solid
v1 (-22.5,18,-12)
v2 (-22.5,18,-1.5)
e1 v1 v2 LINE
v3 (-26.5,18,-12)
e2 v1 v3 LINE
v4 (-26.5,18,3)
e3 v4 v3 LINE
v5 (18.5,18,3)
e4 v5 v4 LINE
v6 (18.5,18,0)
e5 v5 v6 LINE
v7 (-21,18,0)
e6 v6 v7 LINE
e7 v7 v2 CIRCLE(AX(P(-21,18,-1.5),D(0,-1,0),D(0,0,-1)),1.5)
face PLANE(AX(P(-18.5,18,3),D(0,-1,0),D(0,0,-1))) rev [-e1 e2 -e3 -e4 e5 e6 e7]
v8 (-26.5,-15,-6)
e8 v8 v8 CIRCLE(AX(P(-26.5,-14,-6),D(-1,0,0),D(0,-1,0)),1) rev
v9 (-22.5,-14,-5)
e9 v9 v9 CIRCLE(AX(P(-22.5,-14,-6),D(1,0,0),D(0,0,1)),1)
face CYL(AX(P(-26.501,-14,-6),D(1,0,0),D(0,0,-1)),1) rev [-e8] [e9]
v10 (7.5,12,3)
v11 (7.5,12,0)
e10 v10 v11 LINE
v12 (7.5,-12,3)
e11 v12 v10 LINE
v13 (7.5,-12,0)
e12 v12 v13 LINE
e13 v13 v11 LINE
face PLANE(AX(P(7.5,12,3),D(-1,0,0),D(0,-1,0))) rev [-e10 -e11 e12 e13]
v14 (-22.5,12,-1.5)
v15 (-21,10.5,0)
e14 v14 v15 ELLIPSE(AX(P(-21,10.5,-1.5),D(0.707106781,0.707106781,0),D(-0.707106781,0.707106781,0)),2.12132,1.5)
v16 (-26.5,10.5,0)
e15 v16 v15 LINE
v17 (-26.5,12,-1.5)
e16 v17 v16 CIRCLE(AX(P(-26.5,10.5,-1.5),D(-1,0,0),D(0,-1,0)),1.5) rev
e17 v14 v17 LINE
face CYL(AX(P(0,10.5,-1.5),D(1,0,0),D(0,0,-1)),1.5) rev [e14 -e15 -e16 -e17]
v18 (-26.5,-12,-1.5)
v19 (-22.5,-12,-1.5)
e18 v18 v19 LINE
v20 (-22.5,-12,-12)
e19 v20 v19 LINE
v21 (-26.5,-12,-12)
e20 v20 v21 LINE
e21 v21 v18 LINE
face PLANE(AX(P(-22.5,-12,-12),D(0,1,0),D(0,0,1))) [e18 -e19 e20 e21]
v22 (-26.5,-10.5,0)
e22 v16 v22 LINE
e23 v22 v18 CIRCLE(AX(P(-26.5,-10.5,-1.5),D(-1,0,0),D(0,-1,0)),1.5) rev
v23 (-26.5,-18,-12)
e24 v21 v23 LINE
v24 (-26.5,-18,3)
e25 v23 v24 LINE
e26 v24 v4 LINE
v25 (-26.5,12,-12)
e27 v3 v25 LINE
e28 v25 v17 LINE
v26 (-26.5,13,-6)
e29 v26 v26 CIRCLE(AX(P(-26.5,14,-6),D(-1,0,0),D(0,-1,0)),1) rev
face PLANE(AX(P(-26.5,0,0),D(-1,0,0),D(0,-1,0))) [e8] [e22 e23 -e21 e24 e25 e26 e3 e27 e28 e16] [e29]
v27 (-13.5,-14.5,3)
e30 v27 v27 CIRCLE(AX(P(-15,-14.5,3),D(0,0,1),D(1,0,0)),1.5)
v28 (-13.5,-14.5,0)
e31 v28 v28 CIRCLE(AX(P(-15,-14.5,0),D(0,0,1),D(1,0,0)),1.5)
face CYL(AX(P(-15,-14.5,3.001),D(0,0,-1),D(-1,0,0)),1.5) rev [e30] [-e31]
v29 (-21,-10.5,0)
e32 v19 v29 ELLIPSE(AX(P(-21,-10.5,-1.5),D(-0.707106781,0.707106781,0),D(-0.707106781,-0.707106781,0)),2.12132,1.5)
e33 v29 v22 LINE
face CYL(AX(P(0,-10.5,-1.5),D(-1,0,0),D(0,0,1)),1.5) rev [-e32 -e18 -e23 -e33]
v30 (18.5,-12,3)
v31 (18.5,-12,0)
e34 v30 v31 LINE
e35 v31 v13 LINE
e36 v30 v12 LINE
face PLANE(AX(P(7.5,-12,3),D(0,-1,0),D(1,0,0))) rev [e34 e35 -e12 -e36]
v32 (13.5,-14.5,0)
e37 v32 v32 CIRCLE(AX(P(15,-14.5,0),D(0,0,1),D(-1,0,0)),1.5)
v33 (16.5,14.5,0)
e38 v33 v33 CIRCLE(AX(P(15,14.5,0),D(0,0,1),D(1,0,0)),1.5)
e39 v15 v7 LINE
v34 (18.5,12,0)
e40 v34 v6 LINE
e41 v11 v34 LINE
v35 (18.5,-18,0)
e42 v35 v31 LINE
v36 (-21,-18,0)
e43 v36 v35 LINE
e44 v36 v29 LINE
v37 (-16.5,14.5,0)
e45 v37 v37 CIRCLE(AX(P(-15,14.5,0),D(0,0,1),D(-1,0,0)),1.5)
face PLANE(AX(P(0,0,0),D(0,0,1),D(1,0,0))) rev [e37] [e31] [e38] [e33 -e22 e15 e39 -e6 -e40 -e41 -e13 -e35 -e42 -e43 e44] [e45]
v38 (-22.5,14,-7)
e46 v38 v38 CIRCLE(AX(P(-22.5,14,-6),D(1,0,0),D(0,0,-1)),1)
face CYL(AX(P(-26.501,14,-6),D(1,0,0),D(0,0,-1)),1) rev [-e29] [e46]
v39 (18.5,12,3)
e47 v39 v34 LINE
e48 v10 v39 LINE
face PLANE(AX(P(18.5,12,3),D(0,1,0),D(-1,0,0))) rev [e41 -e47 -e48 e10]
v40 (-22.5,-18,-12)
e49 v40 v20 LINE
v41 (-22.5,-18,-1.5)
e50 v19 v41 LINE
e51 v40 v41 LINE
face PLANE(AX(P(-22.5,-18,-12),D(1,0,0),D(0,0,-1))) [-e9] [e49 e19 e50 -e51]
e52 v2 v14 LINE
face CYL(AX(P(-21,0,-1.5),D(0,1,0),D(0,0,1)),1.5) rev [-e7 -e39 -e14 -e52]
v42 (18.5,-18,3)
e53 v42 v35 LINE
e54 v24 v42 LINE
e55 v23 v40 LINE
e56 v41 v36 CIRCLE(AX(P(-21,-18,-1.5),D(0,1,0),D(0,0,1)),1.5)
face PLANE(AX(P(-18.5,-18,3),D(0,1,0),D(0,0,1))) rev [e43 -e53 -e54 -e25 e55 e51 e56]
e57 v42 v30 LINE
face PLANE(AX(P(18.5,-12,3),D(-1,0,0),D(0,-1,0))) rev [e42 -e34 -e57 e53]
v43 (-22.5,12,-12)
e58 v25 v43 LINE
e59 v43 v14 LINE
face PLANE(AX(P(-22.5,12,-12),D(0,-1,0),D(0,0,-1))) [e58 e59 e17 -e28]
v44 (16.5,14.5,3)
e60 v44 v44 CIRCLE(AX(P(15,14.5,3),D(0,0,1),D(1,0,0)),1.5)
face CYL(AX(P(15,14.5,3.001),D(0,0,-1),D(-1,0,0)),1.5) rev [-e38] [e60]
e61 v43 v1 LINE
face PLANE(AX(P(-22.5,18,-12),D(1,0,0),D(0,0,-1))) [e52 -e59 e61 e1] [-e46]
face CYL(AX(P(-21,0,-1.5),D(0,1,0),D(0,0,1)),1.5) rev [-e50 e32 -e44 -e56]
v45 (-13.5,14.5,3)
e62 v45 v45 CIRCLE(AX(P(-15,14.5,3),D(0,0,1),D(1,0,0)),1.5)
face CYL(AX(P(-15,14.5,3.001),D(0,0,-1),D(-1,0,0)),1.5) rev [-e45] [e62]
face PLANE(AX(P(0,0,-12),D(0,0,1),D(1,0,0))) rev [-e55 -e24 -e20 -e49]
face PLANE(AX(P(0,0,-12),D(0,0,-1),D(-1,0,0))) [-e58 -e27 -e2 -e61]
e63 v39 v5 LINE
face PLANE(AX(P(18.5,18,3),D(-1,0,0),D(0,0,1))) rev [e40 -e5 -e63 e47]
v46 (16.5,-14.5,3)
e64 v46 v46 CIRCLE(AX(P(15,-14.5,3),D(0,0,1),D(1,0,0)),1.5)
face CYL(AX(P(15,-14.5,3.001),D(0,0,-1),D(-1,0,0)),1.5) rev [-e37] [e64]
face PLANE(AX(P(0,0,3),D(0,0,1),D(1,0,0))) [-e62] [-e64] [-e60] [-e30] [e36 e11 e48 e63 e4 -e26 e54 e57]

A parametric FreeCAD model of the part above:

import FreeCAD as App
import Part
import Sketcher

V = App.Vector
Q = App.Units.Quantity


def edges_at(feature, points):
    """Names of the edges that pass closest to the given points."""
    edges = feature.Shape.Edges
    near = lambda p: min(range(len(edges)), key=lambda i: edges[i].distToShape(Part.Vertex(*p))[0])
    return sorted({f"Edge{near(p) + 1}" for p in points})


def add_polygon(sketch, points):
    """Adds a closed chain of lines whose ends are joined by coincident constraints."""
    first, n = sketch.GeometryCount, len(points)
    for a, b in zip(points, points[1:] + points[:1]):
        sketch.addGeometry(Part.LineSegment(App.Vector(*a, 0), App.Vector(*b, 0)), False)
    for i in range(n):
        sketch.addConstraint(Sketcher.Constraint("Coincident", first + i, 2, first + (i + 1) % n, 1))

doc = App.newDocument("Part")
body = doc.addObject("PartDesign::Body", "Body")

# Sketch on XY plane
sketch1 = body.newObject("Sketcher::SketchObject", "Sketch")
sketch1.AttachmentSupport = (doc.getObject("XY_Plane"), [""])
sketch1.MapMode = "FlatFace"
add_polygon(sketch1, [(18, 18), (-18, 18), (-18, -18), (18, -18), (18, -12), (8, -12), (8, 12), (18, 12)])  # lines 0-7
sketch1.addConstraint([
    Sketcher.Constraint("Horizontal", 0),
    Sketcher.Constraint("Vertical", 1),
    Sketcher.Constraint("Horizontal", 2),
    Sketcher.Constraint("Vertical", 3),
    Sketcher.Constraint("Horizontal", 4),
    Sketcher.Constraint("Vertical", 5),
    Sketcher.Constraint("Horizontal", 6),
    Sketcher.Constraint("Vertical", 7),
    Sketcher.Constraint("Symmetric", 0, 2, 2, 2, -1, 1),
    Sketcher.Constraint("Symmetric", 3, 2, 6, 2, -1),
    Sketcher.Constraint("DistanceX", 0, 2, 0, 1, Q("37 mm")),
    Sketcher.Constraint("DistanceX", 4, 2, 4, 1, Q("11 mm")),
    Sketcher.Constraint("DistanceY", 1, 2, 1, 1, Q("36 mm")),
    Sketcher.Constraint("DistanceY", 3, 1, 3, 2, Q("6 mm")),
])
pad1 = body.newObject("PartDesign::Pad", "Pad")
pad1.Profile = sketch1
pad1.Length = 3

# Sketch on XY plane
sketch2 = body.newObject("Sketcher::SketchObject", "Sketch001")
sketch2.AttachmentSupport = (doc.getObject("XY_Plane"), [""])
sketch2.MapMode = "FlatFace"
sketch2.addGeometry(Part.Circle(V(-15, -14.5, 0), V(0, 0, 1), 1.5), False)
sketch2.addConstraint([
    Sketcher.Constraint("Diameter", 0, Q("3 mm")),
    Sketcher.Constraint("DistanceX", 0, 3, -1, 1, Q("15 mm")),
    Sketcher.Constraint("DistanceY", 0, 3, -1, 1, Q("14.5 mm")),
])
pocket1 = body.newObject("PartDesign::Pocket", "Pocket")
pocket1.Profile = sketch2
pocket1.Type = "UpToFirst"
pocket1.Reversed = True

# Sketch on XY plane
sketch3 = body.newObject("Sketcher::SketchObject", "Sketch002")
sketch3.AttachmentSupport = (doc.getObject("XY_Plane"), [""])
sketch3.MapMode = "FlatFace"
sketch3.addGeometry(Part.Circle(V(15, -14.5, 0), V(0, 0, 1), 1.5), False)
sketch3.addConstraint([
    Sketcher.Constraint("Diameter", 0, Q("3 mm")),
    Sketcher.Constraint("DistanceX", -1, 1, 0, 3, Q("15 mm")),
    Sketcher.Constraint("DistanceY", 0, 3, -1, 1, Q("14.5 mm")),
])
pocket2 = body.newObject("PartDesign::Pocket", "Pocket001")
pocket2.Profile = sketch3
pocket2.Type = "UpToFirst"
pocket2.Reversed = True

# Sketch on XY plane
sketch4 = body.newObject("Sketcher::SketchObject", "Sketch003")
sketch4.AttachmentSupport = (doc.getObject("XY_Plane"), [""])
sketch4.MapMode = "FlatFace"
sketch4.addGeometry(Part.Circle(V(15, 14.5, 0), V(0, 0, 1), 1.5), False)
sketch4.addConstraint([
    Sketcher.Constraint("Diameter", 0, Q("3 mm")),
    Sketcher.Constraint("DistanceX", -1, 1, 0, 3, Q("15 mm")),
    Sketcher.Constraint("DistanceY", -1, 1, 0, 3, Q("14.5 mm")),
])
pocket3 = body.newObject("PartDesign::Pocket", "Pocket002")
pocket3.Profile = sketch4
pocket3.Type = "UpToFirst"
pocket3.Reversed = True

# Sketch on XY plane
sketch5 = body.newObject("Sketcher::SketchObject", "Sketch004")
sketch5.AttachmentSupport = (doc.getObject("XY_Plane"), [""])
sketch5.MapMode = "FlatFace"
sketch5.addGeometry(Part.Circle(V(-15, 14.5, 0), V(0, 0, 1), 1.5), False)
sketch5.addConstraint([
    Sketcher.Constraint("Diameter", 0, Q("3 mm")),
    Sketcher.Constraint("DistanceX", 0, 3, -1, 1, Q("15 mm")),
    Sketcher.Constraint("DistanceY", -1, 1, 0, 3, Q("14.5 mm")),
])
pocket4 = body.newObject("PartDesign::Pocket", "Pocket003")
pocket4.Profile = sketch5
pocket4.Type = "UpToFirst"
pocket4.Reversed = True

# Sketch on YZ plane
sketch6 = body.newObject("Sketcher::SketchObject", "Sketch005")
sketch6.AttachmentSupport = (doc.getObject("YZ_Plane"), [""])
sketch6.MapMode = "FlatFace"
sketch6.AttachmentOffset = App.Placement(V(0, 0, -18.5), App.Rotation())
add_polygon(sketch6, [(18, 0), (-18, 0), (-18, 3), (18, 3)])  # lines 0-3
sketch6.addConstraint([
    Sketcher.Constraint("Horizontal", 0),
    Sketcher.Constraint("Vertical", 1),
    Sketcher.Constraint("Horizontal", 2),
    Sketcher.Constraint("Vertical", 3),
    Sketcher.Constraint("Symmetric", 0, 2, 3, 2, -1, 1),
    Sketcher.Constraint("DistanceX", 0, 2, 0, 1, Q("36 mm")),
    Sketcher.Constraint("DistanceY", 1, 1, 1, 2, Q("3 mm")),
])
pad2 = body.newObject("PartDesign::Pad", "Pad001")
pad2.Profile = sketch6
pad2.Length = 8
pad2.Reversed = True

# Sketch on XY plane
sketch7 = body.newObject("Sketcher::SketchObject", "Sketch006")
sketch7.AttachmentSupport = (doc.getObject("XY_Plane"), [""])
sketch7.MapMode = "FlatFace"
add_polygon(sketch7, [(-26.5, 18), (-26.5, 12), (-22.5, 12), (-22.5, 18)])  # lines 0-3
add_polygon(sketch7, [(-26.5, -12), (-26.5, -18), (-22.5, -18), (-22.5, -12)])  # lines 4-7
sketch7.addConstraint([
    Sketcher.Constraint("Vertical", 0),
    Sketcher.Constraint("Horizontal", 1),
    Sketcher.Constraint("Vertical", 2),
    Sketcher.Constraint("Horizontal", 3),
    Sketcher.Constraint("Vertical", 4),
    Sketcher.Constraint("Horizontal", 5),
    Sketcher.Constraint("Vertical", 6),
    Sketcher.Constraint("Horizontal", 7),
    Sketcher.Constraint("Symmetric", 3, 2, 4, 2, -1),
    Sketcher.Constraint("Symmetric", 1, 2, 6, 2, -1),
    Sketcher.Constraint("DistanceX", 1, 1, 1, 2, Q("4 mm")),
    Sketcher.Constraint("DistanceY", 0, 2, 0, 1, Q("6 mm")),
    Sketcher.Constraint("DistanceY", -1, 1, 0, 2, Q("12 mm")),
    Sketcher.Constraint("DistanceX", 0, 2, -1, 1, Q("26.5 mm")),
])
pad3 = body.newObject("PartDesign::Pad", "Pad002")
pad3.Profile = sketch7
pad3.Length = 12
pad3.Reversed = True

# Sketch on YZ plane
sketch8 = body.newObject("Sketcher::SketchObject", "Sketch007")
sketch8.AttachmentSupport = (doc.getObject("YZ_Plane"), [""])
sketch8.MapMode = "FlatFace"
sketch8.AttachmentOffset = App.Placement(V(0, 0, -22.5), App.Rotation())
sketch8.addGeometry(Part.Circle(V(14, -6, 0), V(0, 0, 1), 1), False)
sketch8.addConstraint([
    Sketcher.Constraint("Diameter", 0, Q("2 mm")),
    Sketcher.Constraint("DistanceX", -1, 1, 0, 3, Q("14 mm")),
    Sketcher.Constraint("DistanceY", 0, 3, -1, 1, Q("6 mm")),
])
pocket5 = body.newObject("PartDesign::Pocket", "Pocket004")
pocket5.Profile = sketch8
pocket5.Type = "UpToFirst"

# Sketch on YZ plane
sketch9 = body.newObject("Sketcher::SketchObject", "Sketch008")
sketch9.AttachmentSupport = (doc.getObject("YZ_Plane"), [""])
sketch9.MapMode = "FlatFace"
sketch9.AttachmentOffset = App.Placement(V(0, 0, -22.5), App.Rotation())
sketch9.addGeometry(Part.Circle(V(-14, -6, 0), V(0, 0, 1), 1), False)
sketch9.addConstraint([
    Sketcher.Constraint("Diameter", 0, Q("2 mm")),
    Sketcher.Constraint("DistanceX", 0, 3, -1, 1, Q("14 mm")),
    Sketcher.Constraint("DistanceY", 0, 3, -1, 1, Q("6 mm")),
])
pocket6 = body.newObject("PartDesign::Pocket", "Pocket005")
pocket6.Profile = sketch9
pocket6.Type = "UpToFirst"
doc.recompute()

fillet = body.newObject("PartDesign::Fillet", "Fillet")
fillet.Base = (pocket6, edges_at(pocket6, [
    (-24.5, 12, 0),
    (-22.5, 15, 0),
    (-24.5, -12, 0),
    (-22.5, -15, 0),
]))
fillet.Radius = 1.5

doc.recompute()
